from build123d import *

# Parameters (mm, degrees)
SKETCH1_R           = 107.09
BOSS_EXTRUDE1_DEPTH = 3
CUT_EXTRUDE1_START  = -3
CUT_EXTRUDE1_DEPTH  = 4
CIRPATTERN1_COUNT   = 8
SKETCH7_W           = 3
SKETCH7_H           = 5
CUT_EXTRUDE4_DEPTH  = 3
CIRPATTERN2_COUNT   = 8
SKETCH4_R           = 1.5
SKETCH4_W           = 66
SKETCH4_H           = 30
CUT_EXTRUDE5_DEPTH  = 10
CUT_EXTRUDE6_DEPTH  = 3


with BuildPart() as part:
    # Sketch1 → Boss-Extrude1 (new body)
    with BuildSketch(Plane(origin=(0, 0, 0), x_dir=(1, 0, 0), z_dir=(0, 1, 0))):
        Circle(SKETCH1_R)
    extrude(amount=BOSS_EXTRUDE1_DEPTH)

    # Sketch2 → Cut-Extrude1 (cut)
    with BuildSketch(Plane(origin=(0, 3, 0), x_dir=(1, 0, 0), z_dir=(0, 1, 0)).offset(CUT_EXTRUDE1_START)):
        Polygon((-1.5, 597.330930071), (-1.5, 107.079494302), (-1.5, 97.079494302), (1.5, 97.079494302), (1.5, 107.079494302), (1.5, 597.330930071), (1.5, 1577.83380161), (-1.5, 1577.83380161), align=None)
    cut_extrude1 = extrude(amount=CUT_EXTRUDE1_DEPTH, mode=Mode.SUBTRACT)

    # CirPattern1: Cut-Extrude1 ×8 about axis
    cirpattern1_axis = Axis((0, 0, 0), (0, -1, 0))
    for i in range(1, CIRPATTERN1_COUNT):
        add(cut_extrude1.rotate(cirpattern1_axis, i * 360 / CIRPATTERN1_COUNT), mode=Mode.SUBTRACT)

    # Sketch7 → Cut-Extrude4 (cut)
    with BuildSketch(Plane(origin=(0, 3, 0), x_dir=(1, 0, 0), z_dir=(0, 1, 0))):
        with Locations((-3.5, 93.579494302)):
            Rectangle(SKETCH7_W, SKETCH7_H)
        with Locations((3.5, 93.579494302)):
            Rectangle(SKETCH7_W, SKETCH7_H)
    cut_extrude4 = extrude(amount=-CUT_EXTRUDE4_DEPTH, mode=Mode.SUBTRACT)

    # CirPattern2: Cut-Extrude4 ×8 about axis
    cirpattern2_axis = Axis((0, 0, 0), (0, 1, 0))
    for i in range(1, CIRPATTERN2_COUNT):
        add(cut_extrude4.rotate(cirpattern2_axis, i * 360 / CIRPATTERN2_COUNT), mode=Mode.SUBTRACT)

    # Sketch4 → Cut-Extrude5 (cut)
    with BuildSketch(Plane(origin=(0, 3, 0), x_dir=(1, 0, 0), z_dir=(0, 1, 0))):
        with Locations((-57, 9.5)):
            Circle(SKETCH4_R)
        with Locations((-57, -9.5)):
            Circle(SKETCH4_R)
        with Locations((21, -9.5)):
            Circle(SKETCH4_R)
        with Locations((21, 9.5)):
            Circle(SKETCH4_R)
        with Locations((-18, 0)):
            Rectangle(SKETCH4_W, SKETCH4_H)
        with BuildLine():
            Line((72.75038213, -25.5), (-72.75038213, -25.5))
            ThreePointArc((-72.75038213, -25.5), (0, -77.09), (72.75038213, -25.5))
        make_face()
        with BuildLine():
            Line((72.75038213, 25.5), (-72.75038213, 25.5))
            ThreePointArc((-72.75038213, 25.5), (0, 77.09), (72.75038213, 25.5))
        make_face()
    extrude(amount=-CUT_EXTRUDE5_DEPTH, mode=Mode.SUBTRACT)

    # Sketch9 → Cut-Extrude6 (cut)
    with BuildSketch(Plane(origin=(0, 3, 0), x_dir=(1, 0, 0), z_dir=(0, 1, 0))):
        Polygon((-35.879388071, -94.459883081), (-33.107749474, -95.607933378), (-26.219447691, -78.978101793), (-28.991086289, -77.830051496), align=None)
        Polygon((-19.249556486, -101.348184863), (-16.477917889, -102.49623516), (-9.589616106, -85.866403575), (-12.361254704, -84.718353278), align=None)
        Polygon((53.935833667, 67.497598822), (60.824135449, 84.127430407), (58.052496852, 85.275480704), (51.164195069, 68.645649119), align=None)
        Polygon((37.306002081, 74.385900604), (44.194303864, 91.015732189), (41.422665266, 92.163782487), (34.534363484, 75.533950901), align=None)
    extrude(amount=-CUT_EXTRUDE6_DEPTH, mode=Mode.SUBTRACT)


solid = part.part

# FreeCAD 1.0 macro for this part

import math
import FreeCAD as App
import Part
import Sketcher
Q = App.Units.Quantity

doc = App.newDocument("Part")
body = doc.addObject("PartDesign::Body", "Body")

# Sketch on XZ plane
sketch1 = body.newObject("Sketcher::SketchObject", "Sketch")
sketch1.AttachmentSupport = (doc.getObject("XZ_Plane"), [""])
sketch1.MapMode = "FlatFace"
sketch1.addGeometry(Part.Circle(App.Vector(0, 0, 0), App.Vector(0, 0, 1), 107.09), False)
sketch1.addConstraint([
    Sketcher.Constraint("Coincident", 0, 3, -1, 1),
    Sketcher.Constraint("Diameter", 0, Q("214.18 mm")),
])
pad1 = body.newObject("PartDesign::Pad", "Pad")
pad1.Profile = sketch1
pad1.Length = 3
pad1.Reversed = True

# Sketch on XZ plane
sketch2 = body.newObject("Sketcher::SketchObject", "Sketch001")
sketch2.AttachmentSupport = (doc.getObject("XZ_Plane"), [""])
sketch2.MapMode = "FlatFace"
sketch2.addGeometry([
    Part.LineSegment(App.Vector(-1.5, -97.079494, 0), App.Vector(1.5, -97.079494, 0)),
    Part.LineSegment(App.Vector(1.5, -97.079494, 0), App.Vector(1.5, -1577.833802, 0)),
    Part.LineSegment(App.Vector(1.5, -1577.833802, 0), App.Vector(-1.5, -1577.833802, 0)),
    Part.LineSegment(App.Vector(-1.5, -1577.833802, 0), App.Vector(-1.5, -97.079494, 0)),
], False)
sketch2.addConstraint([
    Sketcher.Constraint("Coincident", 0, 2, 1, 1),
    Sketcher.Constraint("Coincident", 1, 2, 2, 1),
    Sketcher.Constraint("Coincident", 2, 2, 3, 1),
    Sketcher.Constraint("Coincident", 3, 2, 0, 1),
    Sketcher.Constraint("Horizontal", 0),
    Sketcher.Constraint("Vertical", 1),
    Sketcher.Constraint("Horizontal", 2),
    Sketcher.Constraint("Vertical", 3),
    Sketcher.Constraint("DistanceX", 0, 1, 0, 2, Q("3 mm")),
    Sketcher.Constraint("DistanceX", -1, 1, 0, 2, Q("1.5 mm")),
    Sketcher.Constraint("DistanceY", 1, 2, -1, 1, Q("1577.833802 mm")),
    Sketcher.Constraint("DistanceY", 1, 2, 1, 1, Q("1480.754307 mm")),
])
pocket1 = body.newObject("PartDesign::Pocket", "Pocket")
pocket1.Profile = sketch2
pocket1.Length = 4
doc.recompute()

polarpattern = body.newObject("PartDesign::PolarPattern", "PolarPattern")
polarpattern.Originals = [pocket1]
polarpattern.Axis = (doc.getObject("Y_Axis"), [""])
polarpattern.Angle = 360
polarpattern.Occurrences = 8
body.Tip = polarpattern

# Sketch on XZ plane
sketch3 = body.newObject("Sketcher::SketchObject", "Sketch002")
sketch3.AttachmentSupport = (doc.getObject("XZ_Plane"), [""])
sketch3.MapMode = "FlatFace"
sketch3.AttachmentOffset = App.Placement(App.Vector(0, 0, -3), App.Rotation())
sketch3.addGeometry([
    Part.LineSegment(App.Vector(-5, -96.079494, 0), App.Vector(-5, -91.079494, 0)),  # 0
    Part.LineSegment(App.Vector(-5, -91.079494, 0), App.Vector(-2, -91.079494, 0)),  # 1
    Part.LineSegment(App.Vector(-2, -91.079494, 0), App.Vector(-2, -96.079494, 0)),  # 2
    Part.LineSegment(App.Vector(-2, -96.079494, 0), App.Vector(-5, -96.079494, 0)),  # 3
    Part.LineSegment(App.Vector(2, -96.079494, 0), App.Vector(2, -91.079494, 0)),  # 4
    Part.LineSegment(App.Vector(2, -91.079494, 0), App.Vector(5, -91.079494, 0)),  # 5
    Part.LineSegment(App.Vector(5, -91.079494, 0), App.Vector(5, -96.079494, 0)),  # 6
    Part.LineSegment(App.Vector(5, -96.079494, 0), App.Vector(2, -96.079494, 0)),  # 7
], False)
sketch3.addConstraint([
    Sketcher.Constraint("Coincident", 0, 2, 1, 1),
    Sketcher.Constraint("Coincident", 1, 2, 2, 1),
    Sketcher.Constraint("Coincident", 2, 2, 3, 1),
    Sketcher.Constraint("Coincident", 3, 2, 0, 1),
    Sketcher.Constraint("Coincident", 4, 2, 5, 1),
    Sketcher.Constraint("Coincident", 5, 2, 6, 1),
    Sketcher.Constraint("Coincident", 6, 2, 7, 1),
    Sketcher.Constraint("Coincident", 7, 2, 4, 1),
    Sketcher.Constraint("Vertical", 0),
    Sketcher.Constraint("Horizontal", 1),
    Sketcher.Constraint("Vertical", 2),
    Sketcher.Constraint("Horizontal", 3),
    Sketcher.Constraint("Vertical", 4),
    Sketcher.Constraint("Horizontal", 5),
    Sketcher.Constraint("Vertical", 6),
    Sketcher.Constraint("Horizontal", 7),
    Sketcher.Constraint("Symmetric", 1, 2, 4, 2, -2),
    Sketcher.Constraint("Symmetric", 3, 2, 6, 2, -2),
    Sketcher.Constraint("DistanceX", 1, 1, 1, 2, Q("3 mm")),
    Sketcher.Constraint("DistanceY", 0, 1, 0, 2, Q("5 mm")),
    Sketcher.Constraint("DistanceX", 0, 2, -1, 1, Q("5 mm")),
    Sketcher.Constraint("DistanceY", 0, 2, -1, 1, Q("91.079494 mm")),
])
pocket2 = body.newObject("PartDesign::Pocket", "Pocket001")
pocket2.Profile = sketch3
pocket2.Length = 3
pocket2.Reversed = True
doc.recompute()

polarpattern2 = body.newObject("PartDesign::PolarPattern", "PolarPattern001")
polarpattern2.Originals = [pocket2]
polarpattern2.Axis = (doc.getObject("Y_Axis"), [""])
polarpattern2.Angle = 360
polarpattern2.Occurrences = 8
body.Tip = polarpattern2

# Sketch on XZ plane
sketch4 = body.newObject("Sketcher::SketchObject", "Sketch003")
sketch4.AttachmentSupport = (doc.getObject("XZ_Plane"), [""])
sketch4.MapMode = "FlatFace"
sketch4.AttachmentOffset = App.Placement(App.Vector(0, 0, -3), App.Rotation())
sketch4.addGeometry([
    Part.Circle(App.Vector(-57, -9.5, 0), App.Vector(0, 0, 1), 1.5),  # 0
    Part.Circle(App.Vector(-57, 9.5, 0), App.Vector(0, 0, 1), 1.5),  # 1
    Part.Circle(App.Vector(21, 9.5, 0), App.Vector(0, 0, 1), 1.5),  # 2
    Part.Circle(App.Vector(21, -9.5, 0), App.Vector(0, 0, 1), 1.5),  # 3
    Part.LineSegment(App.Vector(-51, -15, 0), App.Vector(-51, 15, 0)),  # 4
    Part.LineSegment(App.Vector(-51, 15, 0), App.Vector(15, 15, 0)),  # 5
    Part.LineSegment(App.Vector(15, 15, 0), App.Vector(15, -15, 0)),  # 6
    Part.LineSegment(App.Vector(15, -15, 0), App.Vector(-51, -15, 0)),  # 7
    Part.LineSegment(App.Vector(72.750382, 25.5, 0), App.Vector(-72.750382, 25.5, 0)),  # 8
    Part.ArcOfCircle(Part.Circle(App.Vector(0, 0, 0), App.Vector(0, 0, 1), 77.09), math.radians(19.316259), math.radians(160.683741)),  # 9
    Part.LineSegment(App.Vector(-72.750382, -25.5, 0), App.Vector(72.750382, -25.5, 0)),  # 10
    Part.ArcOfCircle(Part.Circle(App.Vector(0, 0, 0), App.Vector(0, 0, 1), 77.09), math.radians(-160.683741), math.radians(-19.316259)),  # 11
], False)
sketch4.addConstraint([
    Sketcher.Constraint("Coincident", 4, 2, 5, 1),
    Sketcher.Constraint("Coincident", 5, 2, 6, 1),
    Sketcher.Constraint("Coincident", 6, 2, 7, 1),
    Sketcher.Constraint("Coincident", 7, 2, 4, 1),
    Sketcher.Constraint("Coincident", 8, 1, 9, 1),
    Sketcher.Constraint("Coincident", 9, 2, 8, 2),
    Sketcher.Constraint("Coincident", 10, 1, 11, 1),
    Sketcher.Constraint("Coincident", 11, 2, 10, 2),
    Sketcher.Constraint("Vertical", 4),
    Sketcher.Constraint("Horizontal", 5),
    Sketcher.Constraint("Vertical", 6),
    Sketcher.Constraint("Horizontal", 7),
    Sketcher.Constraint("Horizontal", 8),
    Sketcher.Constraint("Horizontal", 10),
    Sketcher.Constraint("Coincident", 9, 3, -1, 1),
    Sketcher.Constraint("Coincident", 11, 3, -1, 1),
    Sketcher.Constraint("Equal", 0, 1),
    Sketcher.Constraint("Equal", 1, 2),
    Sketcher.Constraint("Equal", 2, 3),
    Sketcher.Constraint("Equal", 9, 11),
    Sketcher.Constraint("Symmetric", 0, 3, 1, 3, -1),
    Sketcher.Constraint("Symmetric", 2, 3, 3, 3, -1),
    Sketcher.Constraint("Horizontal", 1, 3, 2, 3),
    Sketcher.Constraint("Vertical", 9, 2, 10, 1),
    Sketcher.Constraint("Diameter", 0, Q("3 mm")),
    Sketcher.Constraint("DistanceX", 5, 1, 5, 2, Q("66 mm")),
    Sketcher.Constraint("DistanceY", 4, 1, 4, 2, Q("30 mm")),
    Sketcher.Constraint("Radius", 9, Q("77.09 mm")),
    Sketcher.Constraint("DistanceX", 0, 3, -1, 1, Q("57 mm")),
    Sketcher.Constraint("DistanceX", -1, 1, 2, 3, Q("21 mm")),
    Sketcher.Constraint("DistanceX", 4, 2, -1, 1, Q("51 mm")),
    Sketcher.Constraint("DistanceY", -1, 1, 4, 2, Q("15 mm")),
    Sketcher.Constraint("DistanceY", 0, 3, 1, 3, Q("19 mm")),
    Sketcher.Constraint("DistanceY", 2, 3, 8, 1, Q("16 mm")),
])
pocket3 = body.newObject("PartDesign::Pocket", "Pocket002")
pocket3.Profile = sketch4
pocket3.Length = 10
pocket3.Reversed = True

# Sketch on XZ plane
sketch5 = body.newObject("Sketcher::SketchObject", "Sketch004")
sketch5.AttachmentSupport = (doc.getObject("XZ_Plane"), [""])
sketch5.MapMode = "FlatFace"
sketch5.AttachmentOffset = App.Placement(App.Vector(0, 0, -3), App.Rotation())
sketch5.addGeometry([
    Part.LineSegment(App.Vector(-35.879388, 94.459883, 0), App.Vector(-33.107749, 95.607933, 0)),  # 0
    Part.LineSegment(App.Vector(-33.107749, 95.607933, 0), App.Vector(-26.219448, 78.978102, 0)),  # 1
    Part.LineSegment(App.Vector(-26.219448, 78.978102, 0), App.Vector(-28.991086, 77.830051, 0)),  # 2
    Part.LineSegment(App.Vector(-28.991086, 77.830051, 0), App.Vector(-35.879388, 94.459883, 0)),  # 3
    Part.LineSegment(App.Vector(-19.249556, 101.348185, 0), App.Vector(-16.477918, 102.496235, 0)),  # 4
    Part.LineSegment(App.Vector(-16.477918, 102.496235, 0), App.Vector(-9.589616, 85.866404, 0)),  # 5
    Part.LineSegment(App.Vector(-9.589616, 85.866404, 0), App.Vector(-12.361255, 84.718353, 0)),  # 6
    Part.LineSegment(App.Vector(-12.361255, 84.718353, 0), App.Vector(-19.249556, 101.348185, 0)),  # 7
    Part.LineSegment(App.Vector(53.935834, -67.497599, 0), App.Vector(60.824135, -84.12743, 0)),  # 8
    Part.LineSegment(App.Vector(60.824135, -84.12743, 0), App.Vector(58.052497, -85.275481, 0)),  # 9
    Part.LineSegment(App.Vector(58.052497, -85.275481, 0), App.Vector(51.164195, -68.645649, 0)),  # 10
    Part.LineSegment(App.Vector(51.164195, -68.645649, 0), App.Vector(53.935834, -67.497599, 0)),  # 11
    Part.LineSegment(App.Vector(37.306002, -74.385901, 0), App.Vector(44.194304, -91.015732, 0)),  # 12
    Part.LineSegment(App.Vector(44.194304, -91.015732, 0), App.Vector(41.422665, -92.163782, 0)),  # 13
    Part.LineSegment(App.Vector(41.422665, -92.163782, 0), App.Vector(34.534363, -75.533951, 0)),  # 14
    Part.LineSegment(App.Vector(34.534363, -75.533951, 0), App.Vector(37.306002, -74.385901, 0)),  # 15
], False)
sketch5.addConstraint([
    Sketcher.Constraint("Coincident", 0, 2, 1, 1),
    Sketcher.Constraint("Coincident", 1, 2, 2, 1),
    Sketcher.Constraint("Coincident", 2, 2, 3, 1),
    Sketcher.Constraint("Coincident", 3, 2, 0, 1),
    Sketcher.Constraint("Coincident", 4, 2, 5, 1),
    Sketcher.Constraint("Coincident", 5, 2, 6, 1),
    Sketcher.Constraint("Coincident", 6, 2, 7, 1),
    Sketcher.Constraint("Coincident", 7, 2, 4, 1),
    Sketcher.Constraint("Coincident", 8, 2, 9, 1),
    Sketcher.Constraint("Coincident", 9, 2, 10, 1),
    Sketcher.Constraint("Coincident", 10, 2, 11, 1),
    Sketcher.Constraint("Coincident", 11, 2, 8, 1),
    Sketcher.Constraint("Coincident", 12, 2, 13, 1),
    Sketcher.Constraint("Coincident", 13, 2, 14, 1),
    Sketcher.Constraint("Coincident", 14, 2, 15, 1),
    Sketcher.Constraint("Coincident", 15, 2, 12, 1),
    Sketcher.Constraint("Perpendicular", 0, 1),
    Sketcher.Constraint("Perpendicular", 1, 2),
    Sketcher.Constraint("Perpendicular", 2, 3),
    Sketcher.Constraint("Perpendicular", 3, 4),
    Sketcher.Constraint("Perpendicular", 4, 5),
    Sketcher.Constraint("Perpendicular", 5, 6),
    Sketcher.Constraint("Perpendicular", 6, 7),
    Sketcher.Constraint("Parallel", 7, 8),
    Sketcher.Constraint("Perpendicular", 8, 9),
    Sketcher.Constraint("Perpendicular", 9, 10),
    Sketcher.Constraint("Perpendicular", 10, 11),
    Sketcher.Constraint("Perpendicular", 11, 12),
    Sketcher.Constraint("Perpendicular", 12, 13),
    Sketcher.Constraint("Perpendicular", 13, 14),
    Sketcher.Constraint("Perpendicular", 14, 15),
    Sketcher.Constraint("Equal", 2, 4),
    Sketcher.Constraint("Equal", 3, 5),
    Sketcher.Constraint("Equal", 7, 8),
    Sketcher.Constraint("Equal", 6, 9),
    Sketcher.Constraint("Equal", 10, 12),
    Sketcher.Constraint("Equal", 11, 13),
    Sketcher.Constraint("Distance", 0, Q("3 mm")),
    Sketcher.Constraint("Distance", 1, Q("18 mm")),
    Sketcher.Constraint("Angle", 0, Q("22.5 deg")),
    Sketcher.Constraint("DistanceY", -1, 1, 1, 2, Q("78.978102 mm")),
    Sketcher.Constraint("DistanceY", 11, 2, -1, 1, Q("67.497599 mm")),
    Sketcher.Constraint("DistanceY", 15, 2, -1, 1, Q("74.385901 mm")),
    Sketcher.Constraint("DistanceY", 0, 2, 4, 2, Q("6.888302 mm")),
    Sketcher.Constraint("DistanceX", 0, 2, -1, 1, Q("33.107749 mm")),
    Sketcher.Constraint("DistanceX", 0, 2, 4, 2, Q("16.629832 mm")),
    Sketcher.Constraint("DistanceX", 5, 2, 8, 2, Q("70.413752 mm")),
    Sketcher.Constraint("DistanceX", 12, 2, 8, 2, Q("16.629832 mm")),
])
pocket4 = body.newObject("PartDesign::Pocket", "Pocket003")
pocket4.Profile = sketch5
pocket4.Length = 3
pocket4.Reversed = True

doc.recompute()
